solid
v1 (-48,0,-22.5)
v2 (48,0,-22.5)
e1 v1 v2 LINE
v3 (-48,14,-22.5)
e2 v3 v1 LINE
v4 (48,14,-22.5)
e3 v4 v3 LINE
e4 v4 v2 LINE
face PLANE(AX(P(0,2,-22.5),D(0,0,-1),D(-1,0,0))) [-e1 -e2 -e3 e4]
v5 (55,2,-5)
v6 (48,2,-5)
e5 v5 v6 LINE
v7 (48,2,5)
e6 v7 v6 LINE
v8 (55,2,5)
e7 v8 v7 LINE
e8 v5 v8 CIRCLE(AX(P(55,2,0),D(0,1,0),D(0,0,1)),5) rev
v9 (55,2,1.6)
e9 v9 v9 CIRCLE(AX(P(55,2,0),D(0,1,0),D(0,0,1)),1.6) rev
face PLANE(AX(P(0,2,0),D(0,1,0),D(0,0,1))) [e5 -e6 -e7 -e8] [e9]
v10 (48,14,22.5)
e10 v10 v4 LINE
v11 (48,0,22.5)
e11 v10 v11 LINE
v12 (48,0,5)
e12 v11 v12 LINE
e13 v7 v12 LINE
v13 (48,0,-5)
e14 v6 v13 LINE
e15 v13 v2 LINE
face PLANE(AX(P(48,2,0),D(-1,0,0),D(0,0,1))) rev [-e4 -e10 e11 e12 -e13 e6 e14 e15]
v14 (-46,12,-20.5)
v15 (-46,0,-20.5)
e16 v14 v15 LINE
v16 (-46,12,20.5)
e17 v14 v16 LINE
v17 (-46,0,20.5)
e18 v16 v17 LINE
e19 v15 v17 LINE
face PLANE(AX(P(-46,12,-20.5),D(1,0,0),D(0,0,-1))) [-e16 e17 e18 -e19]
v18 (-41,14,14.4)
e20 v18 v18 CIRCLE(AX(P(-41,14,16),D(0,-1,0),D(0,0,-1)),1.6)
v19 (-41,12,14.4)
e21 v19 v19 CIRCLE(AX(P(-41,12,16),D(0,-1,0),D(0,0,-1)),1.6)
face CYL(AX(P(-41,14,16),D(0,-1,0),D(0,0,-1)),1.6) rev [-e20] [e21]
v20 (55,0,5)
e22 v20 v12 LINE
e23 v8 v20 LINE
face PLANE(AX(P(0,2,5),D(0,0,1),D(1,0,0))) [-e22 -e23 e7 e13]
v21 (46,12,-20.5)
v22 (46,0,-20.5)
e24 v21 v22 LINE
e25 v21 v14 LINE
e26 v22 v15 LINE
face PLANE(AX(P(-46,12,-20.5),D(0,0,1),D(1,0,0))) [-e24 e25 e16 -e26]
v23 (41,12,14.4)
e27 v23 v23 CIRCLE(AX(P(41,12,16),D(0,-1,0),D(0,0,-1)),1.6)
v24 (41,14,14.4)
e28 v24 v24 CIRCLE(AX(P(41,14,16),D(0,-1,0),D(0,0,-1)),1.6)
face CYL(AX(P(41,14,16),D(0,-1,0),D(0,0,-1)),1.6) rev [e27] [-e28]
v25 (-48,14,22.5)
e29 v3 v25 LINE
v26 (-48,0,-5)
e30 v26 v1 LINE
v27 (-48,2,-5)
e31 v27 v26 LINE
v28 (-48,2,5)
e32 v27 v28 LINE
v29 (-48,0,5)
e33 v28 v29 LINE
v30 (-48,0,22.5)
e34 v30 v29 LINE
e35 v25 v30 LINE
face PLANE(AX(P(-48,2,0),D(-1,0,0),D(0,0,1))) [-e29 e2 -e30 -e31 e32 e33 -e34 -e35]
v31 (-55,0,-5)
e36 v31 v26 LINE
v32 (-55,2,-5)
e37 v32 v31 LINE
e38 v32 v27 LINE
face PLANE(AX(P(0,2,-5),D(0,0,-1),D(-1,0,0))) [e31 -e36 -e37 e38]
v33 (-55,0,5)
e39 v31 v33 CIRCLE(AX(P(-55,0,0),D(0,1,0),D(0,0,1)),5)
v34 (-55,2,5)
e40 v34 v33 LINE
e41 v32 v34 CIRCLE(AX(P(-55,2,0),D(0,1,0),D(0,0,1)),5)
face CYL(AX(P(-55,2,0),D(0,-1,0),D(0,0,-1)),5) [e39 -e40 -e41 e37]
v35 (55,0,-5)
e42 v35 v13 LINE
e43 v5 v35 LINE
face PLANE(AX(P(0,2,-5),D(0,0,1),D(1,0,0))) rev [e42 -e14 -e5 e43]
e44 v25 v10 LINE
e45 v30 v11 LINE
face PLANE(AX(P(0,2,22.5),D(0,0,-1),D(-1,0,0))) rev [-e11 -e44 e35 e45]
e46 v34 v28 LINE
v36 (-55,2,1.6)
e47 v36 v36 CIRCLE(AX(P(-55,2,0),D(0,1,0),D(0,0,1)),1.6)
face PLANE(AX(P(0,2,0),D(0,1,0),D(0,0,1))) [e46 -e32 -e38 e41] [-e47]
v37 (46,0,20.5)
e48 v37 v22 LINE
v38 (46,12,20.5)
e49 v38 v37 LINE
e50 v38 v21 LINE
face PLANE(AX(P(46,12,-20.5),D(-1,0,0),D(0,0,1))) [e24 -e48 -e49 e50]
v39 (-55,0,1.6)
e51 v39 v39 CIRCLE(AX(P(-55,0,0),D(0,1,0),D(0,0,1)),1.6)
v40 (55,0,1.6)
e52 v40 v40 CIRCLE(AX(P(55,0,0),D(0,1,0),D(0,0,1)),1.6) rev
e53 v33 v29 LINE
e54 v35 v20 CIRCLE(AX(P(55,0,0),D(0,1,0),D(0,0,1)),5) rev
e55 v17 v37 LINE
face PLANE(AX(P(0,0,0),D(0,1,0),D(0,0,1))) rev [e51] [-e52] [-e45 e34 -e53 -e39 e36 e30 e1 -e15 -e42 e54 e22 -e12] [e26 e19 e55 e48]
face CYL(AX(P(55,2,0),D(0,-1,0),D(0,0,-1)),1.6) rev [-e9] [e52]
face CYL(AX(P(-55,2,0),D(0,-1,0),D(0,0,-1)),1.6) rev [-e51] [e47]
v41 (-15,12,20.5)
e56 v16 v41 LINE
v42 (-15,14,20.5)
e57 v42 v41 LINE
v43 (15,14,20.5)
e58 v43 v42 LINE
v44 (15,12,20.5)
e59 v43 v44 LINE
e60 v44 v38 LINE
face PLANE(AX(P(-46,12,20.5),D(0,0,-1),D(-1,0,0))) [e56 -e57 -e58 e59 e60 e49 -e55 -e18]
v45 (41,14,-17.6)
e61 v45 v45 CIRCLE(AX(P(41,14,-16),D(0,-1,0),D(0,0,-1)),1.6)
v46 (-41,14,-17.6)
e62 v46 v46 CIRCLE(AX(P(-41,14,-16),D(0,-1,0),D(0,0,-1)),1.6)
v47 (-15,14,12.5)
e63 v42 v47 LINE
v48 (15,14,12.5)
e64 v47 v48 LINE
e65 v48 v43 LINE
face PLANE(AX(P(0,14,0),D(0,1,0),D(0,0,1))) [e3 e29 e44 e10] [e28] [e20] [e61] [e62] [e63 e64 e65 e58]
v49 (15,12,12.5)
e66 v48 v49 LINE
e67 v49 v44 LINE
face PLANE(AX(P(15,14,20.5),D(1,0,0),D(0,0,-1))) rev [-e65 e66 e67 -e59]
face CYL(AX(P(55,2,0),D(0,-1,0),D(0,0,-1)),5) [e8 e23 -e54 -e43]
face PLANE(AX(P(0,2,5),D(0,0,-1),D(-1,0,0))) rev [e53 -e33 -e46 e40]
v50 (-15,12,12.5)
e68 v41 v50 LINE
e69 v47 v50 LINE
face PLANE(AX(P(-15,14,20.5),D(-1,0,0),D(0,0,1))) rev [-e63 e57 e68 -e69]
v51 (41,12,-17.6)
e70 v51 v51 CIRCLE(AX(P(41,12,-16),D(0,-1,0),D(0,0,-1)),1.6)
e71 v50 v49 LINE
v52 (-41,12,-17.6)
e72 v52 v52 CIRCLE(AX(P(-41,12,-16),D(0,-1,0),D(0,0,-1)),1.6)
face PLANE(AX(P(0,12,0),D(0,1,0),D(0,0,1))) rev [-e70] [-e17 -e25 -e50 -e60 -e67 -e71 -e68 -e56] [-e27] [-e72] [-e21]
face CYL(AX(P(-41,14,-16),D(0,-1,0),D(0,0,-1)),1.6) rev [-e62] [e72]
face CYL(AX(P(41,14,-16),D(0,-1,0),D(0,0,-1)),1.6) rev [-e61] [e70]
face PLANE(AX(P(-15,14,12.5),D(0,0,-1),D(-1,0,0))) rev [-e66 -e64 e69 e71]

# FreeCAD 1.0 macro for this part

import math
import FreeCAD as App
import Part
import Sketcher

V = App.Vector
Q = App.Units.Quantity


def add_polygon(sketch, points):
    """Adds a closed chain of lines whose ends are joined by coincident constraints."""
    first, n = sketch.GeometryCount, len(points)
    for a, b in zip(points, points[1:] + points[:1]):
        sketch.addGeometry(Part.LineSegment(App.Vector(*a, 0), App.Vector(*b, 0)), False)
    for i in range(n):
        sketch.addConstraint(Sketcher.Constraint("Coincident", first + i, 2, first + (i + 1) % n, 1))

doc = App.newDocument("Part")
body = doc.addObject("PartDesign::Body", "Body")

sketch1 = doc.addObject("Sketcher::SketchObject", "Sketch")
body.addObject(sketch1)
sketch1.AttachmentSupport = (doc.XZ_Plane, [""])
sketch1.MapMode = "FlatFace"
sketch1.addGeometry([
    Part.LineSegment(V(-48, -5, 0), V(-55, -5, 0)),
    Part.ArcOfCircle(Part.Circle(V(-55, 0, 0), V(0, 0, 1), 5), math.radians(90), math.radians(270)),
    Part.LineSegment(V(-55, 5, 0), V(-48, 5, 0)),
    Part.LineSegment(V(-48, 5, 0), V(-48, 22.5, 0)),
    Part.LineSegment(V(-48, 22.5, 0), V(48, 22.5, 0)),
    Part.LineSegment(V(48, 22.5, 0), V(48, 5, 0)),
    Part.LineSegment(V(48, 5, 0), V(55, 5, 0)),
    Part.ArcOfCircle(Part.Circle(V(55, 0, 0), V(0, 0, 1), 5), math.radians(-90), math.radians(90)),
    Part.LineSegment(V(55, -5, 0), V(48, -5, 0)),
    Part.LineSegment(V(48, -5, 0), V(48, -22.5, 0)),
    Part.LineSegment(V(48, -22.5, 0), V(-48, -22.5, 0)),
    Part.LineSegment(V(-48, -22.5, 0), V(-48, -5, 0)),
    Part.Circle(V(-55, 0, 0), V(0, 0, 1), 1.6),
    Part.Circle(V(55, 0, 0), V(0, 0, 1), 1.6),
], False)
sketch1.addConstraint([
    Sketcher.Constraint("Tangent", 0, 2, 1, 2),
    Sketcher.Constraint("Tangent", 1, 1, 2, 1),
    Sketcher.Constraint("Coincident", 2, 2, 3, 1),
    Sketcher.Constraint("Coincident", 3, 2, 4, 1),
    Sketcher.Constraint("Coincident", 4, 2, 5, 1),
    Sketcher.Constraint("Coincident", 5, 2, 6, 1),
    Sketcher.Constraint("Tangent", 6, 2, 7, 2),
    Sketcher.Constraint("Tangent", 7, 1, 8, 1),
    Sketcher.Constraint("Coincident", 8, 2, 9, 1),
    Sketcher.Constraint("Coincident", 9, 2, 10, 1),
    Sketcher.Constraint("Coincident", 10, 2, 11, 1),
    Sketcher.Constraint("Coincident", 11, 2, 0, 1),
    Sketcher.Constraint("Horizontal", 0),
    Sketcher.Constraint("Horizontal", 2),
    Sketcher.Constraint("Vertical", 3),
    Sketcher.Constraint("Horizontal", 4),
    Sketcher.Constraint("Vertical", 5),
    Sketcher.Constraint("Horizontal", 6),
    Sketcher.Constraint("Horizontal", 8),
    Sketcher.Constraint("Vertical", 9),
    Sketcher.Constraint("Horizontal", 10),
    Sketcher.Constraint("Vertical", 11),
    Sketcher.Constraint("Coincident", 12, 3, 1, 3),
    Sketcher.Constraint("Coincident", 13, 3, 7, 3),
    Sketcher.Constraint("Equal", 1, 7),
    Sketcher.Constraint("Equal", 12, 13),
    Sketcher.Constraint("Symmetric", 1, 3, 7, 3, -1, 1),
    Sketcher.Constraint("Symmetric", 3, 2, 9, 2, -1, 1),
    Sketcher.Constraint("Symmetric", 2, 2, 5, 2, -2),
    Sketcher.Constraint("Vertical", 3, 2, 10, 2),
    Sketcher.Constraint("Radius", 1, Q("5 mm")),
    Sketcher.Constraint("Diameter", 12, Q("3.2 mm")),
    Sketcher.Constraint("DistanceX", 0, 2, 0, 1, Q("7 mm")),
    Sketcher.Constraint("DistanceX", 4, 1, 4, 2, Q("96 mm")),
    Sketcher.Constraint("DistanceY", 3, 1, 3, 2, Q("17.5 mm")),
])
pad1 = doc.addObject("PartDesign::Pad", "Pad")
body.addObject(pad1)
pad1.Profile = sketch1
pad1.Length = 2
pad1.Reversed = True

sketch2 = doc.addObject("Sketcher::SketchObject", "Sketch001")
body.addObject(sketch2)
sketch2.AttachmentSupport = (doc.XZ_Plane, [""])
sketch2.MapMode = "FlatFace"
sketch2.AttachmentOffset = App.Placement(V(0, 0, -2), App.Rotation())
add_polygon(sketch2, [(-48, -22.5), (-48, 22.5), (48, 22.5), (48, -22.5)])
add_polygon(sketch2, [(46, 20.5), (-46, 20.5), (-46, -20.5), (46, -20.5)])
sketch2.addConstraint([
    Sketcher.Constraint("Vertical", 0),
    Sketcher.Constraint("Horizontal", 1),
    Sketcher.Constraint("Vertical", 2),
    Sketcher.Constraint("Horizontal", 3),
    Sketcher.Constraint("Horizontal", 4),
    Sketcher.Constraint("Vertical", 5),
    Sketcher.Constraint("Horizontal", 6),
    Sketcher.Constraint("Vertical", 7),
    Sketcher.Constraint("Symmetric", 0, 2, 2, 2, -1, 1),
    Sketcher.Constraint("Symmetric", 4, 2, 6, 2, -1, 1),
    Sketcher.Constraint("DistanceX", 1, 1, 1, 2, Q("96 mm")),
    Sketcher.Constraint("DistanceX", 4, 2, 4, 1, Q("92 mm")),
    Sketcher.Constraint("DistanceY", 0, 1, 0, 2, Q("45 mm")),
    Sketcher.Constraint("DistanceY", 5, 2, 5, 1, Q("41 mm")),
])
pad2 = doc.addObject("PartDesign::Pad", "Pad001")
body.addObject(pad2)
pad2.Profile = sketch2
pad2.Length = 10
pad2.Reversed = True

sketch3 = doc.addObject("Sketcher::SketchObject", "Sketch002")
body.addObject(sketch3)
sketch3.AttachmentSupport = (doc.XZ_Plane, [""])
sketch3.MapMode = "FlatFace"
sketch3.AttachmentOffset = App.Placement(V(0, 0, -2), App.Rotation())
add_polygon(sketch3, [(-46, -20.5), (-46, 20.5), (46, 20.5), (46, -20.5)])
sketch3.addConstraint([
    Sketcher.Constraint("Vertical", 0),
    Sketcher.Constraint("Horizontal", 1),
    Sketcher.Constraint("Vertical", 2),
    Sketcher.Constraint("Horizontal", 3),
    Sketcher.Constraint("Symmetric", 0, 2, 2, 2, -1, 1),
    Sketcher.Constraint("DistanceX", 1, 1, 1, 2, Q("92 mm")),
    Sketcher.Constraint("DistanceY", 0, 1, 0, 2, Q("41 mm")),
])
pocket1 = doc.addObject("PartDesign::Pocket", "Pocket")
body.addObject(pocket1)
pocket1.Profile = sketch3
pocket1.Type = "ThroughAll"
pocket1.Reversed = True

sketch4 = doc.addObject("Sketcher::SketchObject", "Sketch003")
body.addObject(sketch4)
sketch4.AttachmentSupport = (doc.XZ_Plane, [""])
sketch4.MapMode = "FlatFace"
sketch4.AttachmentOffset = App.Placement(V(0, 0, -12), App.Rotation())
add_polygon(sketch4, [(-48, -22.5), (-48, 22.5), (48, 22.5), (48, -22.5)])
sketch4.addConstraint([
    Sketcher.Constraint("Vertical", 0),
    Sketcher.Constraint("Horizontal", 1),
    Sketcher.Constraint("Vertical", 2),
    Sketcher.Constraint("Horizontal", 3),
    Sketcher.Constraint("Symmetric", 0, 2, 2, 2, -1, 1),
    Sketcher.Constraint("DistanceX", 1, 1, 1, 2, Q("96 mm")),
    Sketcher.Constraint("DistanceY", 0, 1, 0, 2, Q("45 mm")),
])
pad3 = doc.addObject("PartDesign::Pad", "Pad002")
body.addObject(pad3)
pad3.Profile = sketch4
pad3.Length = 2
pad3.Reversed = True

sketch5 = doc.addObject("Sketcher::SketchObject", "Sketch004")
body.addObject(sketch5)
sketch5.AttachmentSupport = (doc.XZ_Plane, [""])
sketch5.MapMode = "FlatFace"
sketch5.AttachmentOffset = App.Placement(V(0, 0, -12), App.Rotation())
sketch5.addGeometry([
    Part.ArcOfCircle(Part.Circle(V(-41, 16, 0), V(0, 0, 1), 1.6), math.radians(180), math.radians(270)),
    Part.ArcOfCircle(Part.Circle(V(-41, 16, 0), V(0, 0, 1), 1.6), math.radians(-90), math.radians(0)),
    Part.ArcOfCircle(Part.Circle(V(-41, 16, 0), V(0, 0, 1), 1.6), math.radians(0), math.radians(180)),
    Part.ArcOfCircle(Part.Circle(V(-41, -16, 0), V(0, 0, 1), 1.6), math.radians(180), math.radians(360)),
    Part.ArcOfCircle(Part.Circle(V(-41, -16, 0), V(0, 0, 1), 1.6), math.radians(0), math.radians(90)),
    Part.ArcOfCircle(Part.Circle(V(-41, -16, 0), V(0, 0, 1), 1.6), math.radians(90), math.radians(180)),
    Part.ArcOfCircle(Part.Circle(V(41, -16, 0), V(0, 0, 1), 1.6), math.radians(90), math.radians(180)),
    Part.ArcOfCircle(Part.Circle(V(41, -16, 0), V(0, 0, 1), 1.6), math.radians(180), math.radians(450)),
    Part.ArcOfCircle(Part.Circle(V(41, 16, 0), V(0, 0, 1), 1.6), math.radians(180), math.radians(270)),
    Part.ArcOfCircle(Part.Circle(V(41, 16, 0), V(0, 0, 1), 1.6), math.radians(-90), math.radians(180)),
], False)
sketch5.addConstraint([
    Sketcher.Constraint("Tangent", 0, 2, 1, 1),
    Sketcher.Constraint("Tangent", 1, 2, 2, 1),
    Sketcher.Constraint("Tangent", 2, 2, 0, 1),
    Sketcher.Constraint("Tangent", 3, 2, 4, 1),
    Sketcher.Constraint("Tangent", 4, 2, 5, 1),
    Sketcher.Constraint("Tangent", 5, 2, 3, 1),
    Sketcher.Constraint("Tangent", 6, 1, 7, 2),
    Sketcher.Constraint("Coincident", 7, 1, 6, 2),
    Sketcher.Constraint("Tangent", 8, 1, 9, 2),
    Sketcher.Constraint("Coincident", 9, 1, 8, 2),
    Sketcher.Constraint("Equal", 2, 3),
    Sketcher.Constraint("Equal", 5, 6),
    Sketcher.Constraint("Equal", 7, 8),
    Sketcher.Constraint("Symmetric", 0, 3, 6, 3, -1, 1),
    Sketcher.Constraint("Symmetric", 3, 3, 8, 3, -1, 1),
    Sketcher.Constraint("Symmetric", 3, 3, 6, 3, -2),
    Sketcher.Constraint("Horizontal", 9, 3, 1, 2),
    Sketcher.Constraint("Horizontal", 1, 2, 2, 2),
    Sketcher.Constraint("Horizontal", 7, 3, 3, 2),
    Sketcher.Constraint("Horizontal", 3, 2, 5, 2),
    Sketcher.Constraint("Horizontal", 5, 2, 7, 1),
    Sketcher.Constraint("Horizontal", 2, 2, 8, 1),
    Sketcher.Constraint("Vertical", 5, 3, 0, 2),
    Sketcher.Constraint("Vertical", 0, 2, 4, 2),
    Sketcher.Constraint("Vertical", 9, 3, 6, 1),
    Sketcher.Constraint("Vertical", 6, 1, 9, 1),
    Sketcher.Constraint("Radius", 0, Q("1.6 mm")),
    Sketcher.Constraint("DistanceX", 0, 3, -1, 1, Q("41 mm")),
    Sketcher.Constraint("DistanceY", -1, 1, 0, 3, Q("16 mm")),
])
pocket2 = doc.addObject("PartDesign::Pocket", "Pocket001")
body.addObject(pocket2)
pocket2.Profile = sketch5
pocket2.Type = "ThroughAll"

sketch6 = doc.addObject("Sketcher::SketchObject", "Sketch005")
body.addObject(sketch6)
sketch6.AttachmentSupport = (doc.XZ_Plane, [""])
sketch6.MapMode = "FlatFace"
sketch6.AttachmentOffset = App.Placement(V(0, 0, -12), App.Rotation())
add_polygon(sketch6, [(15, 12.5), (15, 20.5), (-15, 20.5), (-15, 12.5)])
sketch6.addConstraint([
    Sketcher.Constraint("Vertical", 0),
    Sketcher.Constraint("Horizontal", 1),
    Sketcher.Constraint("Vertical", 2),
    Sketcher.Constraint("Horizontal", 3),
    Sketcher.Constraint("DistanceX", 1, 2, 1, 1, Q("30 mm")),
    Sketcher.Constraint("DistanceY", 0, 1, 0, 2, Q("8 mm")),
    Sketcher.Constraint("DistanceX", -1, 1, 0, 2, Q("15 mm")),
    Sketcher.Constraint("DistanceY", -1, 1, 0, 2, Q("20.5 mm")),
])
pocket3 = doc.addObject("PartDesign::Pocket", "Pocket002")
body.addObject(pocket3)
pocket3.Profile = sketch6
pocket3.Type = "ThroughAll"

doc.recompute()
